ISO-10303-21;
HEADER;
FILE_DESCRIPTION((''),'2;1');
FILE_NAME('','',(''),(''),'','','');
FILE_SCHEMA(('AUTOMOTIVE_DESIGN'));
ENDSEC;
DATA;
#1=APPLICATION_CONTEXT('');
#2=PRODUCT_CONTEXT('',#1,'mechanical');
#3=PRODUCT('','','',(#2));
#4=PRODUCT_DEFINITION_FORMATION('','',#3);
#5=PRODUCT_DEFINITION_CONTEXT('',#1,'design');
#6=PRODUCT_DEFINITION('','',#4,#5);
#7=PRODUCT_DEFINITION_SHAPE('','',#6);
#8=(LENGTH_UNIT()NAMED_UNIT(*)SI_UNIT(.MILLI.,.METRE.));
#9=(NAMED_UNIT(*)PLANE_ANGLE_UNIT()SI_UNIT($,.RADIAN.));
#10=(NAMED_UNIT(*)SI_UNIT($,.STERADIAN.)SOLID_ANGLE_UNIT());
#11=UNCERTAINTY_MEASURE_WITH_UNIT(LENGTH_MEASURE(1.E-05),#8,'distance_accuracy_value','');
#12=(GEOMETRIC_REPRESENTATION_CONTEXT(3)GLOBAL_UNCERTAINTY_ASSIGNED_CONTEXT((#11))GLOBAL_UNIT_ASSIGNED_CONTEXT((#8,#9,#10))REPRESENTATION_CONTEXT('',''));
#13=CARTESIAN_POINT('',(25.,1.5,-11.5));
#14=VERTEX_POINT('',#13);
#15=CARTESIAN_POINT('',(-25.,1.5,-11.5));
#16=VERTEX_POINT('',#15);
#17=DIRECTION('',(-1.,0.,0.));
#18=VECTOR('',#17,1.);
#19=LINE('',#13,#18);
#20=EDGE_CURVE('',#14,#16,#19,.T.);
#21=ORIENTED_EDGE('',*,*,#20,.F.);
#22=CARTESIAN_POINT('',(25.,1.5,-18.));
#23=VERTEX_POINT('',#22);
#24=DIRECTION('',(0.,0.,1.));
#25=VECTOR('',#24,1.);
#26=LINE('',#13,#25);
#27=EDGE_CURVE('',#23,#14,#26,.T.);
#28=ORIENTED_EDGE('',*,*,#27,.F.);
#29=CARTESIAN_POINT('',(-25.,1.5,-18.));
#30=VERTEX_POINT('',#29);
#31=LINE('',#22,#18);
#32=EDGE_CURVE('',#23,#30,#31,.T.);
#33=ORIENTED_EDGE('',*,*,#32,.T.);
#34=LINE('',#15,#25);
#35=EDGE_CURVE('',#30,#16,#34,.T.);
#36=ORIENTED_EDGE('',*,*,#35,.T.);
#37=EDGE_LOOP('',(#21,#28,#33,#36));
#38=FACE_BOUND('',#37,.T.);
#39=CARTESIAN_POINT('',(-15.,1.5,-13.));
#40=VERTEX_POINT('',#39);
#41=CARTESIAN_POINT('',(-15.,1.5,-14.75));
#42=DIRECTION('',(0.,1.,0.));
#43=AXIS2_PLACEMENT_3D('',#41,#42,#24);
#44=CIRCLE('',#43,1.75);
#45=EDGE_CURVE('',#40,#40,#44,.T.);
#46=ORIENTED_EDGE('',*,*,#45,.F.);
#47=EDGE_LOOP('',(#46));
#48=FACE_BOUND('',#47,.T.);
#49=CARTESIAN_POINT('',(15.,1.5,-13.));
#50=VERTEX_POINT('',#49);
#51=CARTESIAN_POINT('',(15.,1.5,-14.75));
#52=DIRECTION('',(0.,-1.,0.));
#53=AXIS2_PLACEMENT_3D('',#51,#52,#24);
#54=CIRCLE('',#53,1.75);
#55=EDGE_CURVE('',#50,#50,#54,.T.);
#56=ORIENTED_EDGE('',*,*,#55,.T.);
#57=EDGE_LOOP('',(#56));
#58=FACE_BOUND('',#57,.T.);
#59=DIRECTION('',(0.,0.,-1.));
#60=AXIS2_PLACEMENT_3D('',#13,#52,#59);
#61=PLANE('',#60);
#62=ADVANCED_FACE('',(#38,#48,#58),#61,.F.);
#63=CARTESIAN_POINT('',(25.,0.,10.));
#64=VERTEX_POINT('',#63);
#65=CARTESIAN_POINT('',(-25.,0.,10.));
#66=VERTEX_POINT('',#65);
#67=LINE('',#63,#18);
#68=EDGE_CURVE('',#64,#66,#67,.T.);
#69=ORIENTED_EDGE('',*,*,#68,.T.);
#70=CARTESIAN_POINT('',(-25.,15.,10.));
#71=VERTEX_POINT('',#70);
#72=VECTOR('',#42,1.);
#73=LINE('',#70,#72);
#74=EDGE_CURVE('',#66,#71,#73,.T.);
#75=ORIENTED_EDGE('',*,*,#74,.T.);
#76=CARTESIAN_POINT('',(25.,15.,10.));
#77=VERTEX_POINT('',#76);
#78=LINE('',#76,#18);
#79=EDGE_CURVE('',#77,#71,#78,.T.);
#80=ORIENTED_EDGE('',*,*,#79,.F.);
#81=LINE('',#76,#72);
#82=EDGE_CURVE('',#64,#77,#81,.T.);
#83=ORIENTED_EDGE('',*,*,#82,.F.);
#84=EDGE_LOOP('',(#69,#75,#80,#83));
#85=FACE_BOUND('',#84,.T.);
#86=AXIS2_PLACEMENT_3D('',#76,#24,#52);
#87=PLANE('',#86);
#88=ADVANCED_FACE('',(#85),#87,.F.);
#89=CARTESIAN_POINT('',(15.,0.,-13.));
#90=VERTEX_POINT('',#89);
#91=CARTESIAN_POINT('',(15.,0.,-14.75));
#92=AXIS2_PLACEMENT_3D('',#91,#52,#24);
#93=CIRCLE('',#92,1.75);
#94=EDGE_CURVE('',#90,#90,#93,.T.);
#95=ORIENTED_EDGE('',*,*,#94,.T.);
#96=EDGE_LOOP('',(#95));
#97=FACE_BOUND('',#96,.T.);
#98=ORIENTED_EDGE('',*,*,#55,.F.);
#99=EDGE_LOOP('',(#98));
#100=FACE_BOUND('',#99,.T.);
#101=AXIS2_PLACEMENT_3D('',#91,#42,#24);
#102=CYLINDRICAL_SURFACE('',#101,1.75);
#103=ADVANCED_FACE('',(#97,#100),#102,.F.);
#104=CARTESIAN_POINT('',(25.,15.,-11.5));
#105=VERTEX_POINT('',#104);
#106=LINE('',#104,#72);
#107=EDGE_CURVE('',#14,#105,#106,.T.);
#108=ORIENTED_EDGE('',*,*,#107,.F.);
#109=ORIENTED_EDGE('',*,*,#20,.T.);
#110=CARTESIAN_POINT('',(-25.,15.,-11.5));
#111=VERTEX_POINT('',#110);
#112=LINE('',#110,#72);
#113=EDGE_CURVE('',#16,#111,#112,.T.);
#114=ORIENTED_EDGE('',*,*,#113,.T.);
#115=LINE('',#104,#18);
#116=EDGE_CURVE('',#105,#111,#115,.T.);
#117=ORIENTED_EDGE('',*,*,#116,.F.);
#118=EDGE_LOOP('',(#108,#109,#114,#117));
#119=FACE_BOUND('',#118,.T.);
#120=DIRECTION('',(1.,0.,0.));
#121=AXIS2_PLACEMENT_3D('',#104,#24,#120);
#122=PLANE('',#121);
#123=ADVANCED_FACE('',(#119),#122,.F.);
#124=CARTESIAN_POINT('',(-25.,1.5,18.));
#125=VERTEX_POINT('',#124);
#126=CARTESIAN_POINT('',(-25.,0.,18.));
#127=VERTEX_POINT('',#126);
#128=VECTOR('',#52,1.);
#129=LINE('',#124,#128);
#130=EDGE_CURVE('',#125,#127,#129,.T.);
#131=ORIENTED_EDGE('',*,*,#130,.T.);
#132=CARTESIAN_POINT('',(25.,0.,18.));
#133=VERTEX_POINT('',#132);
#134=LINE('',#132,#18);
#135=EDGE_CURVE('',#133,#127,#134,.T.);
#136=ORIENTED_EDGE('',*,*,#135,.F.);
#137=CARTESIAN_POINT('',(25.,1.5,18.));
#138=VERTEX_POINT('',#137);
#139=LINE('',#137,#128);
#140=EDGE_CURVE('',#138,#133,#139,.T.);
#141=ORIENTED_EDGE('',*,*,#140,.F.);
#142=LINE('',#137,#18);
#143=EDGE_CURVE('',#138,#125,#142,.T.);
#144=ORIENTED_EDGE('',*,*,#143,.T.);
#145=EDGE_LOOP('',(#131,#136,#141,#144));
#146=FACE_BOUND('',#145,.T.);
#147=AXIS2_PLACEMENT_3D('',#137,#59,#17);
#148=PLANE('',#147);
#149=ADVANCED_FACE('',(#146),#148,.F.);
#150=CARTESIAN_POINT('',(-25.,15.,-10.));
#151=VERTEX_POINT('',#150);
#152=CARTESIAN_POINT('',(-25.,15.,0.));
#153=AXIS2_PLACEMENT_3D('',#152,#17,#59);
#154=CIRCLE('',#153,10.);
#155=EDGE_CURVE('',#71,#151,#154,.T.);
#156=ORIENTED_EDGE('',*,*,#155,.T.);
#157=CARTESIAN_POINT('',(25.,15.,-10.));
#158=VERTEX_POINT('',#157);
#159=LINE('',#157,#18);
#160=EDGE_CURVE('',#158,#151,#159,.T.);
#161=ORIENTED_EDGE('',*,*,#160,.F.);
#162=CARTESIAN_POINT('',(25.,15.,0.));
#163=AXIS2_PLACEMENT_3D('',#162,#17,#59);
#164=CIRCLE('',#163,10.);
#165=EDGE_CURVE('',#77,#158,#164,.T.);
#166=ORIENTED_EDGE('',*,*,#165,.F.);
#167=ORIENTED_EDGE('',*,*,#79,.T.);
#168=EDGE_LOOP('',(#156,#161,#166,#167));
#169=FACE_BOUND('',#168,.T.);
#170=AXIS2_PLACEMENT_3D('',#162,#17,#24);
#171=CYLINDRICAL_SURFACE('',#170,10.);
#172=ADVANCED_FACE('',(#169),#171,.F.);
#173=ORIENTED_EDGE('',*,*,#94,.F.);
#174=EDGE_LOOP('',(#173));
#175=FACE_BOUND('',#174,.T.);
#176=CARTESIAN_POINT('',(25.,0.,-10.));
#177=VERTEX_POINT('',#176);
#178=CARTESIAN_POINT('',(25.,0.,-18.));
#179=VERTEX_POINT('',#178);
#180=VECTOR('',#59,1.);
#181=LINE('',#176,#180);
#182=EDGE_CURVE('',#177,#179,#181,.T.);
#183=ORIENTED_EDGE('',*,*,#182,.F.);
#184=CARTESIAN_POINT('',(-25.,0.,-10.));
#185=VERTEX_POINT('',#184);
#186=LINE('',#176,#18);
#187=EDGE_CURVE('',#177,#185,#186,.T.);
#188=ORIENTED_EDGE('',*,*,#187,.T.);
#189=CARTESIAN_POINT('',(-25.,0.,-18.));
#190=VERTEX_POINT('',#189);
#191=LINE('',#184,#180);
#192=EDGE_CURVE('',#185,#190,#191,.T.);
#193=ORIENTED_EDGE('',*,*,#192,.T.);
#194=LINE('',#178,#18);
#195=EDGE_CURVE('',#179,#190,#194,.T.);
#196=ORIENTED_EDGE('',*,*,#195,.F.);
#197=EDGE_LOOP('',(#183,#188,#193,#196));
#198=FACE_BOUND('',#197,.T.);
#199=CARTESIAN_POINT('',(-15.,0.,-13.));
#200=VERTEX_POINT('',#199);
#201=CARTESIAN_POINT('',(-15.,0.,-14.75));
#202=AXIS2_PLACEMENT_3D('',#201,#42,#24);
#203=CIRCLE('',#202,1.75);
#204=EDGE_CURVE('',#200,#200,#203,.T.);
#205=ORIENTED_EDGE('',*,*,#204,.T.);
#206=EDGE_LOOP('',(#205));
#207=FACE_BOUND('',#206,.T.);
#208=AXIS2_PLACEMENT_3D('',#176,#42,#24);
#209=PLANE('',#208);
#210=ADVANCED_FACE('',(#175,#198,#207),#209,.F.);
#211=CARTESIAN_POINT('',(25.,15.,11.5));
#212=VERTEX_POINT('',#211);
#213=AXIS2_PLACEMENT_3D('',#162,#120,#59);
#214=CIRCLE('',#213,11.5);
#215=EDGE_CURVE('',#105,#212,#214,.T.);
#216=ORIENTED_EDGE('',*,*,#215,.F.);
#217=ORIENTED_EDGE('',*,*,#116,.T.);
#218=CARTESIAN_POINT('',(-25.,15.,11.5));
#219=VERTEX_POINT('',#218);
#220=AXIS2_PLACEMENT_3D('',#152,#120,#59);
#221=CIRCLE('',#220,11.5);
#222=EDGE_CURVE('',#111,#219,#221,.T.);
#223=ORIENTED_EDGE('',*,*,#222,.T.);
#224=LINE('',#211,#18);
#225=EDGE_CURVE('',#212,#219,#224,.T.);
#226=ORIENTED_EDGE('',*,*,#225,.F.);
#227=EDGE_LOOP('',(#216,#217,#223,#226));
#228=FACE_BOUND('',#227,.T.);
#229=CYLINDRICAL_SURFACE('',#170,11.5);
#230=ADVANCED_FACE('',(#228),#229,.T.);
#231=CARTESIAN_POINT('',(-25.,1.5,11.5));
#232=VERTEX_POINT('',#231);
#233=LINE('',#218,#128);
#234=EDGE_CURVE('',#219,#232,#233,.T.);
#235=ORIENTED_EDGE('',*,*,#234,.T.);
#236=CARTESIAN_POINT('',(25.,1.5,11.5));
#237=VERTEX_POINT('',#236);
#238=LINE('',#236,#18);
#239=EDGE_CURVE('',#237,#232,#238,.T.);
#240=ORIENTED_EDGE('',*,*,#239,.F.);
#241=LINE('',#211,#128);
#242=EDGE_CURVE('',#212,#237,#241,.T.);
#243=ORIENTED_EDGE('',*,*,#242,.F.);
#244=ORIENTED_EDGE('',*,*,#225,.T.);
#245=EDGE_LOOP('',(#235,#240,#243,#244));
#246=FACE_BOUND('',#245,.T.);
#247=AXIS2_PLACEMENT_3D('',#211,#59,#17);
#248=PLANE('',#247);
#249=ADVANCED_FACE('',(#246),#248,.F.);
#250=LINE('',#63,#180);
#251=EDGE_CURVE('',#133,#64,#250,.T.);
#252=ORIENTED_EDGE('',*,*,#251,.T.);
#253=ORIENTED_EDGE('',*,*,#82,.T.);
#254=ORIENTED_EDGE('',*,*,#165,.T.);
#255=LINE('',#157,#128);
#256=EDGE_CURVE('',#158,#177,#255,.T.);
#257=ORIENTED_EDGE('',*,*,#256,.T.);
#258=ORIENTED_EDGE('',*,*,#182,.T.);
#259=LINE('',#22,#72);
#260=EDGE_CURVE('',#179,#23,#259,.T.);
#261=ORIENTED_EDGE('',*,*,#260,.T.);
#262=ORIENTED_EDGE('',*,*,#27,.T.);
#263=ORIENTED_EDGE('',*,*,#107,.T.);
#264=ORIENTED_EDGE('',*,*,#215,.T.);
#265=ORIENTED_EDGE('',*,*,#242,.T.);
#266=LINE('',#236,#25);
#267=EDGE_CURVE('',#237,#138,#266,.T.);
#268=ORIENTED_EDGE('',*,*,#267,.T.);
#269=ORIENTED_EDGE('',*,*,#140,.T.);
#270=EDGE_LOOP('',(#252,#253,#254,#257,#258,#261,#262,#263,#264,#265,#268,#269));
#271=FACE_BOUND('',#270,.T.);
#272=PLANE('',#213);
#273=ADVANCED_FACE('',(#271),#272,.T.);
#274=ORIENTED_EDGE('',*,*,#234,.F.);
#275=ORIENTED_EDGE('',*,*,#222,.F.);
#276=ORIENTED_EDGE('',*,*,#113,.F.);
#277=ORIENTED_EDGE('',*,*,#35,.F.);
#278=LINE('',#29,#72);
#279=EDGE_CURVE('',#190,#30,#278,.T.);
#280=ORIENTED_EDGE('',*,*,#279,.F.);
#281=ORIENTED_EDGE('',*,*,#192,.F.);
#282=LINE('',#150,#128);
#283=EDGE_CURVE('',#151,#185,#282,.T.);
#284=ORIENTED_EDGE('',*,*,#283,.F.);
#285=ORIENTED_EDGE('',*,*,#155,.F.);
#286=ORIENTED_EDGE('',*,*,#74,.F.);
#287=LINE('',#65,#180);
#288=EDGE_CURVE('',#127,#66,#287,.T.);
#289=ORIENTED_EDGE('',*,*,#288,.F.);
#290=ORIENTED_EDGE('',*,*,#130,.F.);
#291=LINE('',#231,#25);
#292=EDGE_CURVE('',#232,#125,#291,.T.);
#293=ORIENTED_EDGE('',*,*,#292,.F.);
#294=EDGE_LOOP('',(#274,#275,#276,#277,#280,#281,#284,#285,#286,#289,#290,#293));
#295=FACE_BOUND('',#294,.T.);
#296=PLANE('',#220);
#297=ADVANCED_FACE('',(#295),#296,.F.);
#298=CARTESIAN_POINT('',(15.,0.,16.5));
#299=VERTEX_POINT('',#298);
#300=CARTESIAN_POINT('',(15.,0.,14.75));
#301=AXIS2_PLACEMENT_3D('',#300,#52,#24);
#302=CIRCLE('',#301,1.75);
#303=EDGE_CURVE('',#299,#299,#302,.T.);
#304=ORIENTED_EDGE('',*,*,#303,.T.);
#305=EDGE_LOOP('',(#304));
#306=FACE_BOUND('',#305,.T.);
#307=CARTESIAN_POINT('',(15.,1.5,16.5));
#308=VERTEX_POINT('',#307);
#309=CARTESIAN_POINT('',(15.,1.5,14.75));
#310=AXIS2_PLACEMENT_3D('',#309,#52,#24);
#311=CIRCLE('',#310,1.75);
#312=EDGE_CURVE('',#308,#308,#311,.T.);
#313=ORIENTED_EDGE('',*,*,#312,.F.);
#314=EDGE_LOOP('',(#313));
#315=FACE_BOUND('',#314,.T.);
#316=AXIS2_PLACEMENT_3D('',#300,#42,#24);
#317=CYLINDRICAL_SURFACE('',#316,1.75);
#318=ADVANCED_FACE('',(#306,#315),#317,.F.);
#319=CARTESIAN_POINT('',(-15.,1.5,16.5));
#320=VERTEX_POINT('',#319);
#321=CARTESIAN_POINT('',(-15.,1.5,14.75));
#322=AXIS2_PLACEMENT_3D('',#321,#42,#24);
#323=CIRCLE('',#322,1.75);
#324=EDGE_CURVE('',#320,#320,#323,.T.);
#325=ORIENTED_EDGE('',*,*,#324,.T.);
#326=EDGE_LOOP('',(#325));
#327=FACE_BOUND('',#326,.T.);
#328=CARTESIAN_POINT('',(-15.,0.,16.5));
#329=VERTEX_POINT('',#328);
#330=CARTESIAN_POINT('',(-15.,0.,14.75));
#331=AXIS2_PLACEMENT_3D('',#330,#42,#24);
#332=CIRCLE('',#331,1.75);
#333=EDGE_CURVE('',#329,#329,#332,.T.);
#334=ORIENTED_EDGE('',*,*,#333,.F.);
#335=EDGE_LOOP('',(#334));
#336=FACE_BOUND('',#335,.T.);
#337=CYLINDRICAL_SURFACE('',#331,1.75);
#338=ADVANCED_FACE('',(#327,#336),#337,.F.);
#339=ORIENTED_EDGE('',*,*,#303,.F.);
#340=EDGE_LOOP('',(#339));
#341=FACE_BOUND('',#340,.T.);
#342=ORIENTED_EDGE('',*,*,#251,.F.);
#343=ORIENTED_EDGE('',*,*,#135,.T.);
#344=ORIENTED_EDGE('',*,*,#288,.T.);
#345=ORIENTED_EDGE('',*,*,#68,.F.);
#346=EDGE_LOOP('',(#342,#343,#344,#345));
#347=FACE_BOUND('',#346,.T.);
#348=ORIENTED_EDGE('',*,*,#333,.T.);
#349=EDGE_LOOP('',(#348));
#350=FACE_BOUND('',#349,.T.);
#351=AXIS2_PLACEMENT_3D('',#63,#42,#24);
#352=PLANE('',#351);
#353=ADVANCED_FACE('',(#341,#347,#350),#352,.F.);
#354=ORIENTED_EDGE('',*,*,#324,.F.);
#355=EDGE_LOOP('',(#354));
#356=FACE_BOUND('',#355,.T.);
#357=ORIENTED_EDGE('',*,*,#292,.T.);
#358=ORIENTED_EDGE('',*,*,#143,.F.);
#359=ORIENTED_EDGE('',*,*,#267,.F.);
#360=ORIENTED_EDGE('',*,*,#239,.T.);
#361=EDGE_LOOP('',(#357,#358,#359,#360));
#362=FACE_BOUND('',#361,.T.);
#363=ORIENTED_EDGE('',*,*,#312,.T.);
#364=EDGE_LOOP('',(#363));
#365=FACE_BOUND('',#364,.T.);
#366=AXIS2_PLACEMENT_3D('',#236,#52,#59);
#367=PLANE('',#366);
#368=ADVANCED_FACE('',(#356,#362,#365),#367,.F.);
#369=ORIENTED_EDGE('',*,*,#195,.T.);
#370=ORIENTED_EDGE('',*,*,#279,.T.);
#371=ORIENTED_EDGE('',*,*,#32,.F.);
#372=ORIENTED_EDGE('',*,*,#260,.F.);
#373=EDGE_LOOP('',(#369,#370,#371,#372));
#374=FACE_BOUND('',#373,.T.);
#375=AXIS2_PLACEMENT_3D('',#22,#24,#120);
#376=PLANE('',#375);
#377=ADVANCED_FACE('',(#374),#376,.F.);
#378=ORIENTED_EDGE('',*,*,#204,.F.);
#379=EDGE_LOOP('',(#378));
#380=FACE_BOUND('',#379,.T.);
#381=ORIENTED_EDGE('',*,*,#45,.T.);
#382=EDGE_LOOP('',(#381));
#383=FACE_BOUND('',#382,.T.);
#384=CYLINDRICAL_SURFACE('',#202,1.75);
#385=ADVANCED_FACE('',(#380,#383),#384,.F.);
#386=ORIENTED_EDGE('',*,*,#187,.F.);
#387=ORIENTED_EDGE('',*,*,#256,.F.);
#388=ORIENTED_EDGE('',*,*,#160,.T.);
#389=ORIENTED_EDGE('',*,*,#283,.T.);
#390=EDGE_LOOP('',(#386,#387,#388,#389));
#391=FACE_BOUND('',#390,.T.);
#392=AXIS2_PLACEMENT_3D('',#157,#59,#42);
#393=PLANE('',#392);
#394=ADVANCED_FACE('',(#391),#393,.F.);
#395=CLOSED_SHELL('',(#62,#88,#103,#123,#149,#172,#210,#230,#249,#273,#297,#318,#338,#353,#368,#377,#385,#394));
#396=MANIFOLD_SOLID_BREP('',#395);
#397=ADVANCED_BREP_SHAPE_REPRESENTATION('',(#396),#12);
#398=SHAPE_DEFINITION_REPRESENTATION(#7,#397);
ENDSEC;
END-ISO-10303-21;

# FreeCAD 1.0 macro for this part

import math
import FreeCAD as App
import Part
import Sketcher

V = App.Vector
Q = App.Units.Quantity

doc = App.newDocument("Part")
body = doc.addObject("PartDesign::Body", "Body")

# Sketch on YZ plane
sketch1 = body.newObject("Sketcher::SketchObject", "Sketch")
sketch1.AttachmentSupport = (doc.getObject("YZ_Plane"), [""])
sketch1.MapMode = "FlatFace"
sketch1.addGeometry(Part.LineSegment(V(0, 10, 0), V(15, 10, 0)), False)
sketch1.addGeometry(Part.ArcOfCircle(Part.Circle(V(15, 0, 0), V(0, 0, 1), 10), math.radians(-90), math.radians(90)), False)
sketch1.addGeometry(Part.LineSegment(V(15, -10, 0), V(0, -10, 0)), False)
sketch1.addGeometry(Part.LineSegment(V(0, -10, 0), V(0, -18, 0)), False)
sketch1.addGeometry(Part.LineSegment(V(0, -18, 0), V(1.5, -18, 0)), False)
sketch1.addGeometry(Part.LineSegment(V(1.5, -18, 0), V(1.5, -11.5, 0)), False)
sketch1.addGeometry(Part.LineSegment(V(1.5, -11.5, 0), V(15, -11.5, 0)), False)
sketch1.addGeometry(Part.ArcOfCircle(Part.Circle(V(15, 0, 0), V(0, 0, 1), 11.5), math.radians(-90), math.radians(90)), False)
sketch1.addGeometry(Part.LineSegment(V(15, 11.5, 0), V(1.5, 11.5, 0)), False)
sketch1.addGeometry(Part.LineSegment(V(1.5, 11.5, 0), V(1.5, 18, 0)), False)
sketch1.addGeometry(Part.LineSegment(V(1.5, 18, 0), V(0, 18, 0)), False)
sketch1.addGeometry(Part.LineSegment(V(0, 18, 0), V(0, 10, 0)), False)
sketch1.addConstraint(Sketcher.Constraint("Tangent", 0, 2, 1, 2))
sketch1.addConstraint(Sketcher.Constraint("Tangent", 1, 1, 2, 1))
sketch1.addConstraint(Sketcher.Constraint("Coincident", 2, 2, 3, 1))
sketch1.addConstraint(Sketcher.Constraint("Coincident", 3, 2, 4, 1))
sketch1.addConstraint(Sketcher.Constraint("Coincident", 4, 2, 5, 1))
sketch1.addConstraint(Sketcher.Constraint("Coincident", 5, 2, 6, 1))
sketch1.addConstraint(Sketcher.Constraint("Tangent", 6, 2, 7, 1))
sketch1.addConstraint(Sketcher.Constraint("Tangent", 7, 2, 8, 1))
sketch1.addConstraint(Sketcher.Constraint("Coincident", 8, 2, 9, 1))
sketch1.addConstraint(Sketcher.Constraint("Coincident", 9, 2, 10, 1))
sketch1.addConstraint(Sketcher.Constraint("Coincident", 10, 2, 11, 1))
sketch1.addConstraint(Sketcher.Constraint("Coincident", 11, 2, 0, 1))
sketch1.addConstraint(Sketcher.Constraint("Horizontal", 0))
sketch1.addConstraint(Sketcher.Constraint("Horizontal", 2))
sketch1.addConstraint(Sketcher.Constraint("Vertical", 3))
sketch1.addConstraint(Sketcher.Constraint("Horizontal", 4))
sketch1.addConstraint(Sketcher.Constraint("Vertical", 5))
sketch1.addConstraint(Sketcher.Constraint("Horizontal", 6))
sketch1.addConstraint(Sketcher.Constraint("Horizontal", 8))
sketch1.addConstraint(Sketcher.Constraint("Vertical", 9))
sketch1.addConstraint(Sketcher.Constraint("Horizontal", 10))
sketch1.addConstraint(Sketcher.Constraint("Vertical", 11))
sketch1.addConstraint(Sketcher.Constraint("Coincident", 7, 3, 1, 3))
sketch1.addConstraint(Sketcher.Constraint("Symmetric", 3, 2, 10, 2, -1, 1))
sketch1.addConstraint(Sketcher.Constraint("Symmetric", 5, 2, 8, 2, -1))
sketch1.addConstraint(Sketcher.Constraint("PointOnObject", 2, 2, -2))
sketch1.addConstraint(Sketcher.Constraint("Radius", 1, Q("10 mm")))
sketch1.addConstraint(Sketcher.Constraint("Radius", 7, Q("11.5 mm")))
sketch1.addConstraint(Sketcher.Constraint("DistanceX", 0, 1, 0, 2, Q("15 mm")))
sketch1.addConstraint(Sketcher.Constraint("DistanceY", 3, 2, 3, 1, Q("8 mm")))
sketch1.addConstraint(Sketcher.Constraint("DistanceX", 4, 1, 4, 2, Q("1.5 mm")))
pad1 = body.newObject("PartDesign::Pad", "Pad")
pad1.Profile = sketch1
pad1.Length = 50
pad1.Midplane = True

# Sketch on XZ plane
sketch2 = body.newObject("Sketcher::SketchObject", "Sketch001")
sketch2.AttachmentSupport = (doc.getObject("XZ_Plane"), [""])
sketch2.MapMode = "FlatFace"
sketch2.AttachmentOffset = App.Placement(V(0, 0, -1.5), App.Rotation())
sketch2.addGeometry(Part.Circle(V(-15, -14.75, 0), V(0, 0, 1), 1.75), False)
sketch2.addGeometry(Part.Circle(V(-15, 14.75, 0), V(0, 0, 1), 1.75), False)
sketch2.addConstraint(Sketcher.Constraint("Equal", 0, 1))
sketch2.addConstraint(Sketcher.Constraint("Symmetric", 0, 3, 1, 3, -1))
sketch2.addConstraint(Sketcher.Constraint("Diameter", 0, Q("3.5 mm")))
sketch2.addConstraint(Sketcher.Constraint("DistanceX", 0, 3, -1, 1, Q("15 mm")))
sketch2.addConstraint(Sketcher.Constraint("DistanceY", 0, 3, 1, 3, Q("29.5 mm")))
pocket1 = body.newObject("PartDesign::Pocket", "Pocket")
pocket1.Profile = sketch2
pocket1.Type = "ThroughAll"
pocket1.Reversed = True
doc.recompute()

mirrored = body.newObject("PartDesign::Mirrored", "Mirrored")
mirrored.Originals = [pocket1]
mirrored.MirrorPlane = (doc.getObject("YZ_Plane"), [""])
body.Tip = mirrored

doc.recompute()
